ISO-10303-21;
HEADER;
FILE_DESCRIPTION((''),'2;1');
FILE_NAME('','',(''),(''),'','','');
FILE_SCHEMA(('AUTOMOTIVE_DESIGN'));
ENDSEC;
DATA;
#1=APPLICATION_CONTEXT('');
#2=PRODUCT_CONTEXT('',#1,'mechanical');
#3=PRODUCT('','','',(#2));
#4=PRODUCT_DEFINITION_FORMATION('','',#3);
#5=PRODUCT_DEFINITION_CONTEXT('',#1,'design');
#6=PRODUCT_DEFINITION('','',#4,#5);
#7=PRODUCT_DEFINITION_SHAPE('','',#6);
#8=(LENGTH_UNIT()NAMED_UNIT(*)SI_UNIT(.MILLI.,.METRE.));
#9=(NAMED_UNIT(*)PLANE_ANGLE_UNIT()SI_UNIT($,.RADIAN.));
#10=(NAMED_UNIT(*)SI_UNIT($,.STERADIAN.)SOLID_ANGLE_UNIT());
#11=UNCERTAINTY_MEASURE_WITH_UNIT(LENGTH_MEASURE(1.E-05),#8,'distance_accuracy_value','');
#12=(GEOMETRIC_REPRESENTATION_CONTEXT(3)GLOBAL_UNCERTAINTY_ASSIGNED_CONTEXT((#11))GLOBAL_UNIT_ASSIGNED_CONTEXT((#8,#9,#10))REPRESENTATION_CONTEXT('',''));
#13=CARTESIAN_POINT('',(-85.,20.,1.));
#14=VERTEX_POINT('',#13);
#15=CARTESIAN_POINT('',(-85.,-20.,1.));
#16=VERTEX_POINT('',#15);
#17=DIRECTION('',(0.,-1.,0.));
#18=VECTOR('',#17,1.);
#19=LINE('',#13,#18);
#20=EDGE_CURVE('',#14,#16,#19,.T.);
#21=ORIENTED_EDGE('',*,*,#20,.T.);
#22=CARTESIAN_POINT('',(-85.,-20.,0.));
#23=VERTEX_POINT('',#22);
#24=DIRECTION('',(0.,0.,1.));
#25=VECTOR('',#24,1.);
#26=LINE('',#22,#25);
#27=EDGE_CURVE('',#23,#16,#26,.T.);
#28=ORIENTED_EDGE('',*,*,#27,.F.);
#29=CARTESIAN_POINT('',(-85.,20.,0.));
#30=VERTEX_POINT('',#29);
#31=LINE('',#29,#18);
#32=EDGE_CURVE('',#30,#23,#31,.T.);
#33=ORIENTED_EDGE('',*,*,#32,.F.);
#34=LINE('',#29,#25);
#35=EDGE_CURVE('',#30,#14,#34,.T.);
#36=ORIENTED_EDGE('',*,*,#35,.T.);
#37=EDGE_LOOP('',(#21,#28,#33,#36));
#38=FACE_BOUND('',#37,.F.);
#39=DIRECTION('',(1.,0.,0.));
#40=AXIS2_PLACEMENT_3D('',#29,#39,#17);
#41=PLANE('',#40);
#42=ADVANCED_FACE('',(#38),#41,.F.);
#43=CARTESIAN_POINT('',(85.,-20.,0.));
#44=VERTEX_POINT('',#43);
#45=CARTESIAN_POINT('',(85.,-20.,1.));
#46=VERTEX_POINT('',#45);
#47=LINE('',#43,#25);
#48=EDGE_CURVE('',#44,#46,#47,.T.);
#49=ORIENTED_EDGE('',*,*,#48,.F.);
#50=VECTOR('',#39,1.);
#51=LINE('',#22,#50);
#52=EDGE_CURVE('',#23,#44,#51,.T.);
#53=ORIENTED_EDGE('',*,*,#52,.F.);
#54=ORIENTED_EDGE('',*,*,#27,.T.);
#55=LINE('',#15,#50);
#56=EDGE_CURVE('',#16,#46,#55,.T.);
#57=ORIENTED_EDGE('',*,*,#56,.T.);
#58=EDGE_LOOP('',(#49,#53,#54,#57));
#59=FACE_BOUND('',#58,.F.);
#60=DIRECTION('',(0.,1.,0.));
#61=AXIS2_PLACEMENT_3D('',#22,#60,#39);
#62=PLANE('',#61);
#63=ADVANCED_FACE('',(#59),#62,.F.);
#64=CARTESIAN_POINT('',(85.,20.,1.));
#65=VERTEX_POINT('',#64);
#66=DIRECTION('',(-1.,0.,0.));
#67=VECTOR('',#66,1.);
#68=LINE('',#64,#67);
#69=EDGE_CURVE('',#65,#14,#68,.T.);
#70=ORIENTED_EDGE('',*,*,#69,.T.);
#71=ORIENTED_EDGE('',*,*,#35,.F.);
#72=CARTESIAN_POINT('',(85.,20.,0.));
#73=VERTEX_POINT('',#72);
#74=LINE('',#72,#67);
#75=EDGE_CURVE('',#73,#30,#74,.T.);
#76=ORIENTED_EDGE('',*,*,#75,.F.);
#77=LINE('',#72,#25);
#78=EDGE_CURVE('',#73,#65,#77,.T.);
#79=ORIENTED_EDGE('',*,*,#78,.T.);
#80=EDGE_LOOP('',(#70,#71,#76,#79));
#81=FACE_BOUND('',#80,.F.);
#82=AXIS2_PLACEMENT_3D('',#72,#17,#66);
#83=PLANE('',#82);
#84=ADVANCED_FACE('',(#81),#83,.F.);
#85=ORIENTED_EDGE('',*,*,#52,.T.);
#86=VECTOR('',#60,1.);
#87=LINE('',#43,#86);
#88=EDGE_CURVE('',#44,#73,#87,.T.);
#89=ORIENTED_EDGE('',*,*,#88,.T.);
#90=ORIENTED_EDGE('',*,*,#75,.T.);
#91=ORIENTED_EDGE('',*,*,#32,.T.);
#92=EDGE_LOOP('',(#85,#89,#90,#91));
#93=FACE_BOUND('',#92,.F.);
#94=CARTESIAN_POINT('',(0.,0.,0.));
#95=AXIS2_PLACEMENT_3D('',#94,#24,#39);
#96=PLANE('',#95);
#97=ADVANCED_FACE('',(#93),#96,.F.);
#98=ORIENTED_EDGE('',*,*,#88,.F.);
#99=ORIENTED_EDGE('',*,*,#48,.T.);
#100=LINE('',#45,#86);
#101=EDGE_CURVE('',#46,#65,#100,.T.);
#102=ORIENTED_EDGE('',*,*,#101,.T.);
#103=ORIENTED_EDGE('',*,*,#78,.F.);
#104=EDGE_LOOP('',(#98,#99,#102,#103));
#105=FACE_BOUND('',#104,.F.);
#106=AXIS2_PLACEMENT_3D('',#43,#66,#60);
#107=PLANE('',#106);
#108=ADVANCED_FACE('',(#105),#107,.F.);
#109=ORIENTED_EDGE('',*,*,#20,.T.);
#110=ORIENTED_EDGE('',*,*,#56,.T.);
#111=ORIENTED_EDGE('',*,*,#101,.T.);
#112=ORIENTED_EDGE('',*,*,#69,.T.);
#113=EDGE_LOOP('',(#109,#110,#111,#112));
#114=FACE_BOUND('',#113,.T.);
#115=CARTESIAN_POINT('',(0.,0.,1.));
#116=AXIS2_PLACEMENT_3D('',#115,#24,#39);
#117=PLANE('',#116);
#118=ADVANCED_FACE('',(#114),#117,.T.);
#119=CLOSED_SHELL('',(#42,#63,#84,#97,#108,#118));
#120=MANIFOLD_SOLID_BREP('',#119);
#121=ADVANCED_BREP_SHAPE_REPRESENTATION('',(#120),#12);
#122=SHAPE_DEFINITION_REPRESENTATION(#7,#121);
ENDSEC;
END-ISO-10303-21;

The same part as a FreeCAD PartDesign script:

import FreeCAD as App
import Part
import Sketcher

V = App.Vector

doc = App.newDocument("Part")
body = doc.addObject("PartDesign::Body", "Body")

# Sketch on XY plane
sketch1 = body.newObject("Sketcher::SketchObject", "Sketch")
sketch1.AttachmentSupport = (doc.getObject("XY_Plane"), [""])
sketch1.MapMode = "FlatFace"
sketch1.addGeometry([
    Part.LineSegment(V(-85, 20, 0), V(-85, -20, 0)),
    Part.LineSegment(V(-85, -20, 0), V(85, -20, 0)),
    Part.LineSegment(V(85, -20, 0), V(85, 20, 0)),
    Part.LineSegment(V(85, 20, 0), V(-85, 20, 0)),
], False)
sketch1.addConstraint([
    Sketcher.Constraint("Coincident", 0, 2, 1, 1),
    Sketcher.Constraint("Coincident", 1, 2, 2, 1),
    Sketcher.Constraint("Coincident", 2, 2, 3, 1),
    Sketcher.Constraint("Coincident", 3, 2, 0, 1),
    Sketcher.Constraint("Vertical", 0),
    Sketcher.Constraint("Horizontal", 1),
    Sketcher.Constraint("Vertical", 2),
    Sketcher.Constraint("Horizontal", 3),
    Sketcher.Constraint("Symmetric", 0, 2, 2, 2, -1, 1),
    Sketcher.Constraint("DistanceX", 1, 1, 1, 2, 170.0),
    Sketcher.Constraint("DistanceY", 0, 2, 0, 1, 40.0),
])
pad1 = body.newObject("PartDesign::Pad", "Pad")
pad1.Profile = sketch1
pad1.Length = 1

doc.recompute()
